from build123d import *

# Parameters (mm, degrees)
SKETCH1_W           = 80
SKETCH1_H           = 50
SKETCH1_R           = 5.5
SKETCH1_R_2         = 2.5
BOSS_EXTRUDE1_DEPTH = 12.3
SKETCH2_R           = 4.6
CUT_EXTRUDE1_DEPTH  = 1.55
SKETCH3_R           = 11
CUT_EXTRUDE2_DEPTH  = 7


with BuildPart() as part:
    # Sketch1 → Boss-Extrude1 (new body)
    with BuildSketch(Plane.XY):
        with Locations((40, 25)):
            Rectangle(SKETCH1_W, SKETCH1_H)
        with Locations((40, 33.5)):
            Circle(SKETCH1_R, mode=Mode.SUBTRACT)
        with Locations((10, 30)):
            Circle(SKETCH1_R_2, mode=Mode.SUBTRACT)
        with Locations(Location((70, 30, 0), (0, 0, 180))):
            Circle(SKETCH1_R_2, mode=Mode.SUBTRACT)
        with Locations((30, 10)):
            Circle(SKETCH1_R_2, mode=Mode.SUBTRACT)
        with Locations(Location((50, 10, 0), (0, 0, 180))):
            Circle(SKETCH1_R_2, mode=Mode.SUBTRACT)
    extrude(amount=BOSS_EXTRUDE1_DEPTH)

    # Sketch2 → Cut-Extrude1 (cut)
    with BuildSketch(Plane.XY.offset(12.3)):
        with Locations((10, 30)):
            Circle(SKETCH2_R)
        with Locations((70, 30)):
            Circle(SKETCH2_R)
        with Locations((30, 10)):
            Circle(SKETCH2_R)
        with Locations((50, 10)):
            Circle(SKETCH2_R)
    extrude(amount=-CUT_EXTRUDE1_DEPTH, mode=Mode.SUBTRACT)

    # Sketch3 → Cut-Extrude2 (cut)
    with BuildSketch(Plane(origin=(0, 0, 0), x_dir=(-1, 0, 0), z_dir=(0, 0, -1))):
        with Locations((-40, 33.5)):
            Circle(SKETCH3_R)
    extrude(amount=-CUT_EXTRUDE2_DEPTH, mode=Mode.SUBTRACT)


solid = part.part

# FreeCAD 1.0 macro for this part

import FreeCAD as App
import Part
import Sketcher
from FreeCAD import Vector


def add_polygon(sketch, points):
    """Adds a closed chain of lines whose ends are joined by coincident constraints."""
    first, n = sketch.GeometryCount, len(points)
    for a, b in zip(points, points[1:] + points[:1]):
        sketch.addGeometry(Part.LineSegment(App.Vector(*a, 0), App.Vector(*b, 0)), False)
    for i in range(n):
        sketch.addConstraint(Sketcher.Constraint("Coincident", first + i, 2, first + (i + 1) % n, 1))

doc = App.newDocument("Part")
body = doc.addObject("PartDesign::Body", "Body")

# Sketch on XY plane
sketch1 = body.newObject("Sketcher::SketchObject", "Sketch")
sketch1.AttachmentSupport = (doc.getObject("XY_Plane"), [""])
sketch1.MapMode = "FlatFace"
add_polygon(sketch1, [(0, 50), (0, 0), (80, 0), (80, 50)])  # lines 0-3
sketch1.addGeometry(Part.Circle(Vector(30, 10, 0), Vector(0, 0, 1), 2.5), False)  # 4
sketch1.addGeometry(Part.Circle(Vector(50, 10, 0), Vector(0, 0, 1), 2.5), False)  # 5
sketch1.addGeometry(Part.Circle(Vector(10, 30, 0), Vector(0, 0, 1), 2.5), False)  # 6
sketch1.addGeometry(Part.Circle(Vector(70, 30, 0), Vector(0, 0, 1), 2.5), False)  # 7
sketch1.addGeometry(Part.Circle(Vector(40, 33.5, 0), Vector(0, 0, 1), 5.5), False)  # 8
sketch1.addConstraint(Sketcher.Constraint("Vertical", 0))
sketch1.addConstraint(Sketcher.Constraint("Horizontal", 1))
sketch1.addConstraint(Sketcher.Constraint("Vertical", 2))
sketch1.addConstraint(Sketcher.Constraint("Horizontal", 3))
sketch1.addConstraint(Sketcher.Constraint("Coincident", 0, 2, -1, 1))
sketch1.addConstraint(Sketcher.Constraint("Equal", 4, 5))
sketch1.addConstraint(Sketcher.Constraint("Equal", 5, 6))
sketch1.addConstraint(Sketcher.Constraint("Equal", 6, 7))
sketch1.addConstraint(Sketcher.Constraint("Horizontal", 4, 3, 5, 3))
sketch1.addConstraint(Sketcher.Constraint("Horizontal", 6, 3, 7, 3))
sketch1.addConstraint(Sketcher.Constraint("Diameter", 4, 5.0))
sketch1.addConstraint(Sketcher.Constraint("Diameter", 8, 11.0))
sketch1.addConstraint(Sketcher.Constraint("DistanceX", 1, 1, 1, 2, 80.0))
sketch1.addConstraint(Sketcher.Constraint("DistanceY", 0, 2, 0, 1, 50.0))
sketch1.addConstraint(Sketcher.Constraint("DistanceX", -1, 1, 4, 3, 30.0))
sketch1.addConstraint(Sketcher.Constraint("DistanceY", -1, 1, 4, 3, 10.0))
sketch1.addConstraint(Sketcher.Constraint("DistanceX", -1, 1, 5, 3, 50.0))
sketch1.addConstraint(Sketcher.Constraint("DistanceX", -1, 1, 6, 3, 10.0))
sketch1.addConstraint(Sketcher.Constraint("DistanceY", -1, 1, 6, 3, 30.0))
sketch1.addConstraint(Sketcher.Constraint("DistanceX", -1, 1, 7, 3, 70.0))
sketch1.addConstraint(Sketcher.Constraint("DistanceX", -1, 1, 8, 3, 40.0))
sketch1.addConstraint(Sketcher.Constraint("DistanceY", -1, 1, 8, 3, 33.5))
pad1 = body.newObject("PartDesign::Pad", "Pad")
pad1.Profile = sketch1
pad1.Length = 12.3

# Sketch on XY plane
sketch2 = body.newObject("Sketcher::SketchObject", "Sketch001")
sketch2.AttachmentSupport = (doc.getObject("XY_Plane"), [""])
sketch2.MapMode = "FlatFace"
sketch2.AttachmentOffset = App.Placement(Vector(0, 0, 12.3), App.Rotation())
sketch2.addGeometry(Part.Circle(Vector(10, 30, 0), Vector(0, 0, 1), 4.6), False)
sketch2.addGeometry(Part.Circle(Vector(70, 30, 0), Vector(0, 0, 1), 4.6), False)
sketch2.addGeometry(Part.Circle(Vector(30, 10, 0), Vector(0, 0, 1), 4.6), False)
sketch2.addGeometry(Part.Circle(Vector(50, 10, 0), Vector(0, 0, 1), 4.6), False)
sketch2.addConstraint(Sketcher.Constraint("Equal", 0, 1))
sketch2.addConstraint(Sketcher.Constraint("Equal", 1, 2))
sketch2.addConstraint(Sketcher.Constraint("Equal", 2, 3))
sketch2.addConstraint(Sketcher.Constraint("Horizontal", 0, 3, 1, 3))
sketch2.addConstraint(Sketcher.Constraint("Horizontal", 2, 3, 3, 3))
sketch2.addConstraint(Sketcher.Constraint("Diameter", 0, 9.2))
sketch2.addConstraint(Sketcher.Constraint("DistanceX", -1, 1, 0, 3, 10.0))
sketch2.addConstraint(Sketcher.Constraint("DistanceY", -1, 1, 0, 3, 30.0))
sketch2.addConstraint(Sketcher.Constraint("DistanceX", -1, 1, 1, 3, 70.0))
sketch2.addConstraint(Sketcher.Constraint("DistanceX", -1, 1, 2, 3, 30.0))
sketch2.addConstraint(Sketcher.Constraint("DistanceY", -1, 1, 2, 3, 10.0))
sketch2.addConstraint(Sketcher.Constraint("DistanceX", -1, 1, 3, 3, 50.0))
pocket1 = body.newObject("PartDesign::Pocket", "Pocket")
pocket1.Profile = sketch2
pocket1.Length = 1.55

# Sketch on XY plane
sketch3 = body.newObject("Sketcher::SketchObject", "Sketch002")
sketch3.AttachmentSupport = (doc.getObject("XY_Plane"), [""])
sketch3.MapMode = "FlatFace"
sketch3.addGeometry(Part.Circle(Vector(40, 33.5, 0), Vector(0, 0, 1), 11), False)
sketch3.addConstraint(Sketcher.Constraint("Diameter", 0, 22.0))
sketch3.addConstraint(Sketcher.Constraint("DistanceX", -1, 1, 0, 3, 40.0))
sketch3.addConstraint(Sketcher.Constraint("DistanceY", -1, 1, 0, 3, 33.5))
pocket2 = body.newObject("PartDesign::Pocket", "Pocket001")
pocket2.Profile = sketch3
pocket2.Length = 7
pocket2.Reversed = True

doc.recompute()
